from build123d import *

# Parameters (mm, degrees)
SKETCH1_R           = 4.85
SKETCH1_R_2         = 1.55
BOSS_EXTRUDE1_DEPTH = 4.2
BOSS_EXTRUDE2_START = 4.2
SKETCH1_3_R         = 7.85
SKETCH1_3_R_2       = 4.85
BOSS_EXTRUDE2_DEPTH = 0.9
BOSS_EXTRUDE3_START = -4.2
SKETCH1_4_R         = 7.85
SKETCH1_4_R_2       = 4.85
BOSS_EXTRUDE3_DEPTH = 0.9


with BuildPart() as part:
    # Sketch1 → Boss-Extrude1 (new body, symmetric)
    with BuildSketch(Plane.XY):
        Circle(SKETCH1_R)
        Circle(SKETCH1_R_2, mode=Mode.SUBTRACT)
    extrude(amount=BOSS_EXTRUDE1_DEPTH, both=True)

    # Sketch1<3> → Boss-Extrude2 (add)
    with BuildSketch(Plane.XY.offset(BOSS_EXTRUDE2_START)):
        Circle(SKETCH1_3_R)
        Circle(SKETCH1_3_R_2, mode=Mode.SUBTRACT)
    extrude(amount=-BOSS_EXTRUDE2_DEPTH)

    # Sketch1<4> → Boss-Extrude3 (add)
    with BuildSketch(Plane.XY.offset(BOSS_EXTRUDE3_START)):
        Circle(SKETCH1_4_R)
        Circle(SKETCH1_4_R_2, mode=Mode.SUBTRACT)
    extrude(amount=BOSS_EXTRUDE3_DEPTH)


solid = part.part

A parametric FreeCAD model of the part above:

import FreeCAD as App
import Part
import Sketcher
Q = App.Units.Quantity

doc = App.newDocument("Part")
body = doc.addObject("PartDesign::Body", "Body")

sketch1 = doc.addObject("Sketcher::SketchObject", "Sketch")
body.addObject(sketch1)
sketch1.AttachmentSupport = (doc.XY_Plane, [""])
sketch1.MapMode = "FlatFace"
sketch1.addGeometry([
    Part.Circle(App.Vector(0, 0, 0), App.Vector(0, 0, 1), 4.8),
    Part.Circle(App.Vector(0, 0, 0), App.Vector(0, 0, 1), 1.6),
], False)
sketch1.addConstraint([
    Sketcher.Constraint("Coincident", 0, 3, -1, 1),
    Sketcher.Constraint("Coincident", 1, 3, -1, 1),
    Sketcher.Constraint("Diameter", 0, Q("9.7 mm")),
    Sketcher.Constraint("Diameter", 1, Q("3.1 mm")),
])
pad1 = doc.addObject("PartDesign::Pad", "Pad")
body.addObject(pad1)
pad1.Profile = sketch1
pad1.Length = 8.4
pad1.Midplane = True

sketch2 = doc.addObject("Sketcher::SketchObject", "Sketch001")
body.addObject(sketch2)
sketch2.AttachmentSupport = (doc.XY_Plane, [""])
sketch2.MapMode = "FlatFace"
sketch2.AttachmentOffset = App.Placement(App.Vector(0, 0, 4.2), App.Rotation())
sketch2.addGeometry([
    Part.Circle(App.Vector(0, 0, 0), App.Vector(0, 0, 1), 7.8),
    Part.Circle(App.Vector(0, 0, 0), App.Vector(0, 0, 1), 4.8),
], False)
sketch2.addConstraint([
    Sketcher.Constraint("Coincident", 0, 3, -1, 1),
    Sketcher.Constraint("Coincident", 1, 3, -1, 1),
    Sketcher.Constraint("Diameter", 0, Q("15.7 mm")),
    Sketcher.Constraint("Diameter", 1, Q("9.7 mm")),
])
pad2 = doc.addObject("PartDesign::Pad", "Pad001")
body.addObject(pad2)
pad2.Profile = sketch2
pad2.Length = 0.9
pad2.Reversed = True

sketch3 = doc.addObject("Sketcher::SketchObject", "Sketch002")
body.addObject(sketch3)
sketch3.AttachmentSupport = (doc.XY_Plane, [""])
sketch3.MapMode = "FlatFace"
sketch3.AttachmentOffset = App.Placement(App.Vector(0, 0, -4.2), App.Rotation())
sketch3.addGeometry([
    Part.Circle(App.Vector(0, 0, 0), App.Vector(0, 0, 1), 7.8),
    Part.Circle(App.Vector(0, 0, 0), App.Vector(0, 0, 1), 4.8),
], False)
sketch3.addConstraint([
    Sketcher.Constraint("Coincident", 0, 3, -1, 1),
    Sketcher.Constraint("Coincident", 1, 3, -1, 1),
    Sketcher.Constraint("Diameter", 0, Q("15.7 mm")),
    Sketcher.Constraint("Diameter", 1, Q("9.7 mm")),
])
pad3 = doc.addObject("PartDesign::Pad", "Pad002")
body.addObject(pad3)
pad3.Profile = sketch3
pad3.Length = 0.9

doc.recompute()
